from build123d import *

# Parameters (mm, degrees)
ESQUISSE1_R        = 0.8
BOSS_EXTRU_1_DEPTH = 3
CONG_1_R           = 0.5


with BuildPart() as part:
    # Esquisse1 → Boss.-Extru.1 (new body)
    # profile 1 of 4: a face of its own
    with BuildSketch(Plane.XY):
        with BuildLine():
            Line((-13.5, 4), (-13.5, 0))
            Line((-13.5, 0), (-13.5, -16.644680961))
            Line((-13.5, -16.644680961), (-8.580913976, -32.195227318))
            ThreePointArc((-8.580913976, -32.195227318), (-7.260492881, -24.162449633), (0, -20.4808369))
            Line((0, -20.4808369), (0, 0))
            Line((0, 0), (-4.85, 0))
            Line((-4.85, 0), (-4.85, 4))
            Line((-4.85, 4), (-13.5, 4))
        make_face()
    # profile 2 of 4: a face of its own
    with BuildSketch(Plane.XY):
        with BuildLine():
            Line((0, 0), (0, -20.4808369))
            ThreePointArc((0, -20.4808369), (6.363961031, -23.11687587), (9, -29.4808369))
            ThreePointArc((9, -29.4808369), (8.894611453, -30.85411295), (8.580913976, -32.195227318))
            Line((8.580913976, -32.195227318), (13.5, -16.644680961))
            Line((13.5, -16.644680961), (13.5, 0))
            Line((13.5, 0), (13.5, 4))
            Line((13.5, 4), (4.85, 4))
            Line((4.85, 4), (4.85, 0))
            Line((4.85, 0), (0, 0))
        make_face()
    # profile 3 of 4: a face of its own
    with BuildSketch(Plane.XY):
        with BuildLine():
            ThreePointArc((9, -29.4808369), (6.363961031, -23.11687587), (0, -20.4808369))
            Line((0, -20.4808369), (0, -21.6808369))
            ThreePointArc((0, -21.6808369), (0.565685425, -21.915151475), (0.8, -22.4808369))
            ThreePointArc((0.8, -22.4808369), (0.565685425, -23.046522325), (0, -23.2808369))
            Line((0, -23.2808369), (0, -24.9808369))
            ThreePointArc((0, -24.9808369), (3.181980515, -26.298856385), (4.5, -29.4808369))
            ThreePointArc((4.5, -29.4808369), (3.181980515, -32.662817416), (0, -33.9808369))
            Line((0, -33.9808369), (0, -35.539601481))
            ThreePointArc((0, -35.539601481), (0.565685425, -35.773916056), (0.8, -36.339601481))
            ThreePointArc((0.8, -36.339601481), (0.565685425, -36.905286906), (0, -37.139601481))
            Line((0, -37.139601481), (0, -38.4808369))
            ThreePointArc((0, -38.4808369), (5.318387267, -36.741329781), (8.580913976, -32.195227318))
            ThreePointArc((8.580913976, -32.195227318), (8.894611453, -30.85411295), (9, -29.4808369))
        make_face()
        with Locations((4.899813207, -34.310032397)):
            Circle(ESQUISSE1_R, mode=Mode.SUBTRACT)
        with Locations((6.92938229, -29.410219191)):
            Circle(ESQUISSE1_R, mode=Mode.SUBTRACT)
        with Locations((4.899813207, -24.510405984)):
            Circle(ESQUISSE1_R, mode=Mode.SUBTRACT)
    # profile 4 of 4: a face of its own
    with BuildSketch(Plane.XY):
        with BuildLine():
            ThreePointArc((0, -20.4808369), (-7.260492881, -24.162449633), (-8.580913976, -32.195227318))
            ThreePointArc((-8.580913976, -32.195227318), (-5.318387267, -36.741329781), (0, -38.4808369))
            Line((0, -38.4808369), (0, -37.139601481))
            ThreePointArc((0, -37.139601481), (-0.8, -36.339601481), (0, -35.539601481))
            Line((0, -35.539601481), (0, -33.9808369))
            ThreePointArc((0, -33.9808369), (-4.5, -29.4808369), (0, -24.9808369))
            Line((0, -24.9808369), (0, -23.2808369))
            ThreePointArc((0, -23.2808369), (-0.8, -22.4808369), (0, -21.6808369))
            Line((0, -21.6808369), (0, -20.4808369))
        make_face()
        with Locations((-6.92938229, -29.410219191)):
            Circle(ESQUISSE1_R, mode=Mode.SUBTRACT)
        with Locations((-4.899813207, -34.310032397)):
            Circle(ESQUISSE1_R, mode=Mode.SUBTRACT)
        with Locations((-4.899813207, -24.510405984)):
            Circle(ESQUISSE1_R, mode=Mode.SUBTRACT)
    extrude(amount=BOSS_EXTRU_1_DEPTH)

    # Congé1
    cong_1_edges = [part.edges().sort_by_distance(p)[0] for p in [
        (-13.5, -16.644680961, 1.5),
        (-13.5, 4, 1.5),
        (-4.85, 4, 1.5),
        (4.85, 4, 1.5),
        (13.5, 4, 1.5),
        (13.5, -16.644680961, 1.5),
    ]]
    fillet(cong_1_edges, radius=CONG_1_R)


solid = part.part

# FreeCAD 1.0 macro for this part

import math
import FreeCAD as App
import Part
import Sketcher

V = App.Vector
Q = App.Units.Quantity


def edges_at(feature, points):
    """Names of the edges that pass closest to the given points."""
    edges = feature.Shape.Edges
    near = lambda p: min(range(len(edges)), key=lambda i: edges[i].distToShape(Part.Vertex(*p))[0])
    return sorted({f"Edge{near(p) + 1}" for p in points})

doc = App.newDocument("Part")
body = doc.addObject("PartDesign::Body", "Body")

# Sketch on XY plane
sketch1 = body.newObject("Sketcher::SketchObject", "Sketch")
sketch1.AttachmentSupport = (doc.getObject("XY_Plane"), [""])
sketch1.MapMode = "FlatFace"
sketch1.addGeometry([
    Part.LineSegment(V(-13.5, 4, 0), V(-13.5, -16.6, 0)),  # 0
    Part.LineSegment(V(-13.5, -16.6, 0), V(-8.6, -32.2, 0)),  # 1
    Part.ArcOfCircle(Part.Circle(V(0, -29.5, 0), V(0, 0, 1), 9), math.radians(-162), math.radians(-90)),  # 2
    Part.ArcOfCircle(Part.Circle(V(0, -29.5, 0), V(0, 0, 1), 9), math.radians(-90), math.radians(-18)),  # 3
    Part.LineSegment(V(8.6, -32.2, 0), V(13.5, -16.6, 0)),  # 4
    Part.LineSegment(V(13.5, -16.6, 0), V(13.5, 4, 0)),  # 5
    Part.LineSegment(V(13.5, 4, 0), V(4.8, 4, 0)),  # 6
    Part.LineSegment(V(4.8, 4, 0), V(4.8, 0, 0)),  # 7
    Part.LineSegment(V(4.8, 0, 0), V(-4.8, 0, 0)),  # 8
    Part.LineSegment(V(-4.8, 0, 0), V(-4.8, 4, 0)),  # 9
    Part.LineSegment(V(-4.8, 4, 0), V(-13.5, 4, 0)),  # 10
    Part.Circle(V(-4.9, -24.5, 0), V(0, 0, 1), 0.8),  # 11
    Part.ArcOfCircle(Part.Circle(V(0, -22.5, 0), V(0, 0, 1), 0.8), math.radians(90), math.radians(270)),  # 12
    Part.ArcOfCircle(Part.Circle(V(0, -22.5, 0), V(0, 0, 1), 0.8), math.radians(0), math.radians(90)),  # 13
    Part.ArcOfCircle(Part.Circle(V(0, -22.5, 0), V(0, 0, 1), 0.8), math.radians(-90), math.radians(0)),  # 14
    Part.ArcOfCircle(Part.Circle(V(0, -36.3, 0), V(0, 0, 1), 0.8), math.radians(90), math.radians(270)),  # 15
    Part.ArcOfCircle(Part.Circle(V(0, -36.3, 0), V(0, 0, 1), 0.8), math.radians(0), math.radians(90)),  # 16
    Part.ArcOfCircle(Part.Circle(V(0, -36.3, 0), V(0, 0, 1), 0.8), math.radians(-90), math.radians(0)),  # 17
    Part.ArcOfCircle(Part.Circle(V(0, -29.5, 0), V(0, 0, 1), 4.5), math.radians(90), math.radians(270)),  # 18
    Part.ArcOfCircle(Part.Circle(V(0, -29.5, 0), V(0, 0, 1), 4.5), math.radians(0), math.radians(90)),  # 19
    Part.ArcOfCircle(Part.Circle(V(0, -29.5, 0), V(0, 0, 1), 4.5), math.radians(-90), math.radians(0)),  # 20
    Part.Circle(V(-6.9, -29.4, 0), V(0, 0, 1), 0.8),  # 21
    Part.Circle(V(-4.9, -34.3, 0), V(0, 0, 1), 0.8),  # 22
    Part.Circle(V(4.9, -24.5, 0), V(0, 0, 1), 0.8),  # 23
    Part.Circle(V(6.9, -29.4, 0), V(0, 0, 1), 0.8),  # 24
    Part.Circle(V(4.9, -34.3, 0), V(0, 0, 1), 0.8),  # 25
], False)
sketch1.addConstraint([
    Sketcher.Constraint("Coincident", 0, 2, 1, 1),
    Sketcher.Constraint("Tangent", 1, 2, 2, 1),
    Sketcher.Constraint("Tangent", 2, 2, 3, 1),
    Sketcher.Constraint("Tangent", 3, 2, 4, 1),
    Sketcher.Constraint("Coincident", 4, 2, 5, 1),
    Sketcher.Constraint("Coincident", 5, 2, 6, 1),
    Sketcher.Constraint("Coincident", 6, 2, 7, 1),
    Sketcher.Constraint("Coincident", 7, 2, 8, 1),
    Sketcher.Constraint("Coincident", 8, 2, 9, 1),
    Sketcher.Constraint("Coincident", 9, 2, 10, 1),
    Sketcher.Constraint("Coincident", 10, 2, 0, 1),
    Sketcher.Constraint("Tangent", 12, 1, 13, 2),
    Sketcher.Constraint("Tangent", 13, 1, 14, 2),
    Sketcher.Constraint("Tangent", 14, 1, 12, 2),
    Sketcher.Constraint("Tangent", 15, 1, 16, 2),
    Sketcher.Constraint("Tangent", 16, 1, 17, 2),
    Sketcher.Constraint("Tangent", 17, 1, 15, 2),
    Sketcher.Constraint("Tangent", 18, 1, 19, 2),
    Sketcher.Constraint("Tangent", 19, 1, 20, 2),
    Sketcher.Constraint("Tangent", 20, 1, 18, 2),
    Sketcher.Constraint("Vertical", 0),
    Sketcher.Constraint("Vertical", 5),
    Sketcher.Constraint("Horizontal", 6),
    Sketcher.Constraint("Vertical", 7),
    Sketcher.Constraint("Horizontal", 8),
    Sketcher.Constraint("Vertical", 9),
    Sketcher.Constraint("Horizontal", 10),
    Sketcher.Constraint("Coincident", 18, 3, 2, 3),
    Sketcher.Constraint("Equal", 2, 3),
    Sketcher.Constraint("Equal", 11, 12),
    Sketcher.Constraint("Equal", 14, 15),
    Sketcher.Constraint("Equal", 17, 21),
    Sketcher.Constraint("Equal", 21, 22),
    Sketcher.Constraint("Equal", 22, 23),
    Sketcher.Constraint("Equal", 23, 24),
    Sketcher.Constraint("Equal", 24, 25),
    Sketcher.Constraint("Symmetric", 7, 2, 8, 2, -1, 1),
    Sketcher.Constraint("Symmetric", 11, 3, 23, 3, -2),
    Sketcher.Constraint("Symmetric", 21, 3, 24, 3, -2),
    Sketcher.Constraint("Symmetric", 22, 3, 25, 3, -2),
    Sketcher.Constraint("Symmetric", 1, 2, 3, 2, -2),
    Sketcher.Constraint("Symmetric", 5, 2, 10, 2, -2),
    Sketcher.Constraint("PointOnObject", 12, 3, -2),
    Sketcher.Constraint("PointOnObject", 15, 3, -2),
    Sketcher.Constraint("PointOnObject", 2, 2, -2),
    Sketcher.Constraint("PointOnObject", 12, 1, -2),
    Sketcher.Constraint("PointOnObject", 14, 1, -2),
    Sketcher.Constraint("PointOnObject", 15, 1, -2),
    Sketcher.Constraint("PointOnObject", 17, 1, -2),
    Sketcher.Constraint("PointOnObject", 18, 1, -2),
    Sketcher.Constraint("PointOnObject", 20, 1, -2),
    Sketcher.Constraint("Horizontal", 14, 3, 13, 1),
    Sketcher.Constraint("Horizontal", 17, 3, 16, 1),
    Sketcher.Constraint("Horizontal", 20, 3, 19, 1),
    Sketcher.Constraint("Vertical", 11, 3, 22, 3),
    Sketcher.Constraint("Radius", 2, Q("9 mm")),
    Sketcher.Constraint("Diameter", 11, Q("1.6 mm")),
    Sketcher.Constraint("Radius", 18, Q("4.5 mm")),
    Sketcher.Constraint("DistanceY", 7, 2, 7, 1, Q("4 mm")),
    Sketcher.Constraint("DistanceX", 8, 2, 8, 1, Q("9.7 mm")),
    Sketcher.Constraint("DistanceY", 2, 3, 12, 3, Q("7 mm")),
    Sketcher.Constraint("DistanceX", 6, 2, 6, 1, Q("8.65 mm")),
    Sketcher.Constraint("DistanceY", 0, 2, 0, 1, Q("20.644681 mm")),
    Sketcher.Constraint("DistanceY", 15, 3, -1, 1, Q("36.339601 mm")),
    Sketcher.Constraint("DistanceX", 1, 2, 22, 3, Q("3.681101 mm")),
    Sketcher.Constraint("DistanceY", 21, 3, -1, 1, Q("29.410219 mm")),
    Sketcher.Constraint("DistanceY", 3, 3, 11, 3, Q("4.970431 mm")),
    Sketcher.Constraint("DistanceX", 21, 3, 11, 3, Q("2.029569 mm")),
    Sketcher.Constraint("DistanceY", 15, 3, 22, 3, Q("2.029569 mm")),
    Sketcher.Constraint("DistanceY", 1, 2, 21, 3, Q("2.785008 mm")),
])
pad1 = body.newObject("PartDesign::Pad", "Pad")
pad1.Profile = sketch1
pad1.Length = 3
doc.recompute()

fillet = body.newObject("PartDesign::Fillet", "Fillet")
fillet.Base = (pad1, edges_at(pad1, [
    (-13.5, -16.645, 1.5),
    (-13.5, 4, 1.5),
    (-4.85, 4, 1.5),
    (4.85, 4, 1.5),
    (13.5, 4, 1.5),
    (13.5, -16.645, 1.5),
]))
fillet.Radius = 0.5

doc.recompute()
